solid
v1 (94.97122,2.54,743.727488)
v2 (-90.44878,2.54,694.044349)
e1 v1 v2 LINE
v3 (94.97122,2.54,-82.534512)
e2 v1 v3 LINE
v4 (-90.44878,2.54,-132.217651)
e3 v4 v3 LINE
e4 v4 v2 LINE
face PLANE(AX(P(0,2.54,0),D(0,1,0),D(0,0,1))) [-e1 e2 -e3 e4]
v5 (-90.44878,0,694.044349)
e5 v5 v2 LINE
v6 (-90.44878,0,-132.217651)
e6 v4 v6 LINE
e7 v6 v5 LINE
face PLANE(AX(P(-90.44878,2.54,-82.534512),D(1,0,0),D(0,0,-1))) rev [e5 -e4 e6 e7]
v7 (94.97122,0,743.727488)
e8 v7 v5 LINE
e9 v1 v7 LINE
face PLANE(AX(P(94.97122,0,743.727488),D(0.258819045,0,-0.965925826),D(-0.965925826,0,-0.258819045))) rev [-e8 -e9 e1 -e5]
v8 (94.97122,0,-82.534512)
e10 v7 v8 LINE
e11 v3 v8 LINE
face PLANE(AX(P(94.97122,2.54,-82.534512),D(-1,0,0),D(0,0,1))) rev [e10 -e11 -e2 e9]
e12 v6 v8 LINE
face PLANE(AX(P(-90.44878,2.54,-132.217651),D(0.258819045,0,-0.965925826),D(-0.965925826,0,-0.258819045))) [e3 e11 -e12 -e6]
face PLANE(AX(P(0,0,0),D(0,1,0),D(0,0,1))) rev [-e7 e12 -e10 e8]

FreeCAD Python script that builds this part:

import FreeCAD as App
import Part
import Sketcher
from FreeCAD import Vector
Q = App.Units.Quantity


def add_polygon(sketch, points):
    """Adds a closed chain of lines whose ends are joined by coincident constraints."""
    first, n = sketch.GeometryCount, len(points)
    for a, b in zip(points, points[1:] + points[:1]):
        sketch.addGeometry(Part.LineSegment(App.Vector(*a, 0), App.Vector(*b, 0)), False)
    for i in range(n):
        sketch.addConstraint(Sketcher.Constraint("Coincident", first + i, 2, first + (i + 1) % n, 1))

doc = App.newDocument("Part")
body = doc.addObject("PartDesign::Body", "Body")

# Sketch on XZ plane
sketch1 = body.newObject("Sketcher::SketchObject", "Sketch")
sketch1.AttachmentSupport = (doc.getObject("XZ_Plane"), [""])
sketch1.MapMode = "FlatFace"
add_polygon(sketch1, [(-90, -83), (-90, 744), (95, 744), (95, -83)])  # lines 0-3
sketch1.addConstraint([
    Sketcher.Constraint("Vertical", 0),
    Sketcher.Constraint("Horizontal", 1),
    Sketcher.Constraint("Vertical", 2),
    Sketcher.Constraint("Horizontal", 3),
    Sketcher.Constraint("DistanceX", 1, 1, 1, 2, Q("7.3 in")),
    Sketcher.Constraint("DistanceY", 0, 1, 0, 2, Q("32.53 in")),
    Sketcher.Constraint("DistanceX", 0, 2, -1, 1, 90.44878),
    Sketcher.Constraint("DistanceY", -1, 1, 0, 2, 743.727488),
])
pad1 = body.newObject("PartDesign::Pad", "Pad")
pad1.Profile = sketch1
pad1.Length = Q("0.1 in")
pad1.Reversed = True

# Sketch on XZ plane
sketch2 = body.newObject("Sketcher::SketchObject", "Sketch001")
sketch2.AttachmentSupport = (doc.getObject("XZ_Plane"), [""])
sketch2.MapMode = "FlatFace"
sketch2.AttachmentOffset = App.Placement(Vector(0, 0, -0.1 * 25.4), App.Rotation())
add_polygon(sketch2, [(95, 744), (-90, 694), (-90, 744)])  # lines 0-2
sketch2.addConstraint([
    Sketcher.Constraint("Vertical", 1),
    Sketcher.Constraint("Horizontal", 2),
    Sketcher.Constraint("DistanceX", 2, 1, 2, 2, Q("7.3 in")),
    Sketcher.Constraint("Angle", 0, Q("-165 deg")),
    Sketcher.Constraint("DistanceX", 0, 2, -1, 1, 90.44878),
    Sketcher.Constraint("DistanceY", -1, 1, 0, 2, 694.044349),
])
pocket1 = body.newObject("PartDesign::Pocket", "Pocket")
pocket1.Profile = sketch2
pocket1.Length = Q("0.1 in")
pocket1.Reversed = True

# Sketch on XZ plane
sketch3 = body.newObject("Sketcher::SketchObject", "Sketch002")
sketch3.AttachmentSupport = (doc.getObject("XZ_Plane"), [""])
sketch3.MapMode = "FlatFace"
add_polygon(sketch3, [(-90, -83), (-90, -132), (95, -83)])  # lines 0-2
sketch3.addConstraint([
    Sketcher.Constraint("Vertical", 0),
    Sketcher.Constraint("Horizontal", 2),
    Sketcher.Constraint("DistanceX", 2, 2, 2, 1, Q("7.3 in")),
    Sketcher.Constraint("Angle", 1, Q("15 deg")),
    Sketcher.Constraint("DistanceX", 0, 2, -1, 1, 90.44878),
    Sketcher.Constraint("DistanceY", 0, 2, -1, 1, 132.217651),
])
pad2 = body.newObject("PartDesign::Pad", "Pad001")
pad2.Profile = sketch3
pad2.Length = Q("0.1 in")
pad2.Reversed = True

doc.recompute()
